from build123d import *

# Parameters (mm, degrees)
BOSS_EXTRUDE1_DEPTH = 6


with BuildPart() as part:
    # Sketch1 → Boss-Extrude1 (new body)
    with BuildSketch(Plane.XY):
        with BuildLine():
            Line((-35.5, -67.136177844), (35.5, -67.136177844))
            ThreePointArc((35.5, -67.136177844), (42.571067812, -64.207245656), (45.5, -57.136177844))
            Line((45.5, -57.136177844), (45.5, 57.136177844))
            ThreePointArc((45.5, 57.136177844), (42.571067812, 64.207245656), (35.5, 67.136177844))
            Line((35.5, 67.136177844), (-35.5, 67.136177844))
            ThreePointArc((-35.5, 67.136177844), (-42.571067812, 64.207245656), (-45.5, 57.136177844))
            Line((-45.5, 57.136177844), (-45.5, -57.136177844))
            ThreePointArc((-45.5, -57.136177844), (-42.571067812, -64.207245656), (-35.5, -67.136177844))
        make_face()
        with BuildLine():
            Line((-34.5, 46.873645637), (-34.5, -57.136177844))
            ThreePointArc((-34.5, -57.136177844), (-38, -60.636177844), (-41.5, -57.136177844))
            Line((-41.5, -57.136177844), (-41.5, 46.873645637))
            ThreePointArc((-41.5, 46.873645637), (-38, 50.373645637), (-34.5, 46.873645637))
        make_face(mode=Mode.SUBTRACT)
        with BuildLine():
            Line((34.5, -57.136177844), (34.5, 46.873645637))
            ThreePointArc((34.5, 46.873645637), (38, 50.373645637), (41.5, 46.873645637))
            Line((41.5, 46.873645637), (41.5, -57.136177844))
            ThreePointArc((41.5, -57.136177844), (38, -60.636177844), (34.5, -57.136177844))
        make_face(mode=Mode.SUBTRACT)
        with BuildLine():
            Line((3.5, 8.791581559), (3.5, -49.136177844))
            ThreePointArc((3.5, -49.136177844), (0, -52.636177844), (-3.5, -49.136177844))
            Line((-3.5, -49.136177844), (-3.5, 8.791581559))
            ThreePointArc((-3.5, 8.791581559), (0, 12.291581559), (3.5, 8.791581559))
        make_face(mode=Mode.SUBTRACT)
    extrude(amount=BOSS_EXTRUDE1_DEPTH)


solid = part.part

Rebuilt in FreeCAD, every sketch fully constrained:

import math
import FreeCAD as App
import Part
import Sketcher
from FreeCAD import Vector
Q = App.Units.Quantity

doc = App.newDocument("Part")
body = doc.addObject("PartDesign::Body", "Body")

# Sketch on XY plane
sketch1 = doc.addObject("Sketcher::SketchObject", "Sketch")
body.addObject(sketch1)
sketch1.AttachmentSupport = (doc.XY_Plane, [""])
sketch1.MapMode = "FlatFace"
sketch1.addGeometry([
    Part.LineSegment(Vector(-35.5, -67.136178, 0), Vector(35.5, -67.136178, 0)),  # 0
    Part.ArcOfCircle(Part.Circle(Vector(35.5, -57.136178, 0), Vector(0, 0, 1), 10), math.radians(-90), math.radians(0)),  # 1
    Part.LineSegment(Vector(45.5, -57.136178, 0), Vector(45.5, 57.136178, 0)),  # 2
    Part.ArcOfCircle(Part.Circle(Vector(35.5, 57.136178, 0), Vector(0, 0, 1), 10), math.radians(0), math.radians(90)),  # 3
    Part.LineSegment(Vector(35.5, 67.136178, 0), Vector(-35.5, 67.136178, 0)),  # 4
    Part.ArcOfCircle(Part.Circle(Vector(-35.5, 57.136178, 0), Vector(0, 0, 1), 10), math.radians(90), math.radians(180)),  # 5
    Part.LineSegment(Vector(-45.5, 57.136178, 0), Vector(-45.5, -57.136178, 0)),  # 6
    Part.ArcOfCircle(Part.Circle(Vector(-35.5, -57.136178, 0), Vector(0, 0, 1), 10), math.radians(180), math.radians(270)),  # 7
    Part.ArcOfCircle(Part.Circle(Vector(-38, 46.873646, 0), Vector(0, 0, 1), 3.5), math.radians(0), math.radians(180)),  # 8
    Part.LineSegment(Vector(-34.5, 46.873646, 0), Vector(-34.5, -57.136178, 0)),  # 9
    Part.ArcOfCircle(Part.Circle(Vector(-38, -57.136178, 0), Vector(0, 0, 1), 3.5), math.radians(180), math.radians(360)),  # 10
    Part.LineSegment(Vector(-41.5, -57.136178, 0), Vector(-41.5, 46.873646, 0)),  # 11
    Part.ArcOfCircle(Part.Circle(Vector(0, 8.791582, 0), Vector(0, 0, 1), 3.5), math.radians(0), math.radians(180)),  # 12
    Part.LineSegment(Vector(3.5, 8.791582, 0), Vector(3.5, -49.136178, 0)),  # 13
    Part.ArcOfCircle(Part.Circle(Vector(0, -49.136178, 0), Vector(0, 0, 1), 3.5), math.radians(180), math.radians(360)),  # 14
    Part.LineSegment(Vector(-3.5, -49.136178, 0), Vector(-3.5, 8.791582, 0)),  # 15
    Part.ArcOfCircle(Part.Circle(Vector(38, -57.136178, 0), Vector(0, 0, 1), 3.5), math.radians(180), math.radians(360)),  # 16
    Part.LineSegment(Vector(34.5, -57.136178, 0), Vector(34.5, 46.873646, 0)),  # 17
    Part.ArcOfCircle(Part.Circle(Vector(38, 46.873646, 0), Vector(0, 0, 1), 3.5), math.radians(0), math.radians(180)),  # 18
    Part.LineSegment(Vector(41.5, 46.873646, 0), Vector(41.5, -57.136178, 0)),  # 19
], False)
sketch1.addConstraint([
    Sketcher.Constraint("Tangent", 0, 2, 1, 1),
    Sketcher.Constraint("Tangent", 1, 2, 2, 1),
    Sketcher.Constraint("Tangent", 2, 2, 3, 1),
    Sketcher.Constraint("Tangent", 3, 2, 4, 1),
    Sketcher.Constraint("Tangent", 4, 2, 5, 1),
    Sketcher.Constraint("Tangent", 5, 2, 6, 1),
    Sketcher.Constraint("Tangent", 6, 2, 7, 1),
    Sketcher.Constraint("Tangent", 7, 2, 0, 1),
    Sketcher.Constraint("Tangent", 8, 1, 9, 1),
    Sketcher.Constraint("Tangent", 9, 2, 10, 2),
    Sketcher.Constraint("Tangent", 10, 1, 11, 1),
    Sketcher.Constraint("Tangent", 11, 2, 8, 2),
    Sketcher.Constraint("Tangent", 12, 1, 13, 1),
    Sketcher.Constraint("Tangent", 13, 2, 14, 2),
    Sketcher.Constraint("Tangent", 14, 1, 15, 1),
    Sketcher.Constraint("Tangent", 15, 2, 12, 2),
    Sketcher.Constraint("Tangent", 16, 1, 17, 1),
    Sketcher.Constraint("Tangent", 17, 2, 18, 2),
    Sketcher.Constraint("Tangent", 18, 1, 19, 1),
    Sketcher.Constraint("Tangent", 19, 2, 16, 2),
    Sketcher.Constraint("Horizontal", 0),
    Sketcher.Constraint("Vertical", 2),
    Sketcher.Constraint("Horizontal", 4),
    Sketcher.Constraint("Vertical", 6),
    Sketcher.Constraint("Vertical", 9),
    Sketcher.Constraint("Vertical", 11),
    Sketcher.Constraint("Vertical", 13),
    Sketcher.Constraint("Vertical", 15),
    Sketcher.Constraint("Vertical", 17),
    Sketcher.Constraint("Vertical", 19),
    Sketcher.Constraint("Equal", 1, 3),
    Sketcher.Constraint("Equal", 3, 5),
    Sketcher.Constraint("Equal", 5, 7),
    Sketcher.Constraint("Equal", 10, 12),
    Sketcher.Constraint("Equal", 14, 16),
    Sketcher.Constraint("Symmetric", 1, 3, 5, 3, -1, 1),
    Sketcher.Constraint("Symmetric", 10, 3, 16, 3, -2),
    Sketcher.Constraint("PointOnObject", 12, 3, -2),
    Sketcher.Constraint("Horizontal", 7, 3, 10, 3),
    Sketcher.Constraint("Horizontal", 8, 3, 18, 3),
    Sketcher.Constraint("Radius", 1, Q("10 mm")),
    Sketcher.Constraint("Radius", 8, Q("3.5 mm")),
    Sketcher.Constraint("DistanceX", 0, 1, 0, 2, Q("71 mm")),
    Sketcher.Constraint("DistanceX", 8, 3, -1, 1, Q("38 mm")),
    Sketcher.Constraint("DistanceY", 1, 3, 14, 3, Q("8 mm")),
    Sketcher.Constraint("DistanceY", 13, 2, 13, 1, Q("57.927759 mm")),
    Sketcher.Constraint("DistanceY", 2, 1, 2, 2, Q("114.272356 mm")),
    Sketcher.Constraint("DistanceY", 9, 2, 9, 1, Q("104.009823 mm")),
])
pad1 = doc.addObject("PartDesign::Pad", "Pad")
body.addObject(pad1)
pad1.Profile = sketch1
pad1.Length = 6

doc.recompute()
